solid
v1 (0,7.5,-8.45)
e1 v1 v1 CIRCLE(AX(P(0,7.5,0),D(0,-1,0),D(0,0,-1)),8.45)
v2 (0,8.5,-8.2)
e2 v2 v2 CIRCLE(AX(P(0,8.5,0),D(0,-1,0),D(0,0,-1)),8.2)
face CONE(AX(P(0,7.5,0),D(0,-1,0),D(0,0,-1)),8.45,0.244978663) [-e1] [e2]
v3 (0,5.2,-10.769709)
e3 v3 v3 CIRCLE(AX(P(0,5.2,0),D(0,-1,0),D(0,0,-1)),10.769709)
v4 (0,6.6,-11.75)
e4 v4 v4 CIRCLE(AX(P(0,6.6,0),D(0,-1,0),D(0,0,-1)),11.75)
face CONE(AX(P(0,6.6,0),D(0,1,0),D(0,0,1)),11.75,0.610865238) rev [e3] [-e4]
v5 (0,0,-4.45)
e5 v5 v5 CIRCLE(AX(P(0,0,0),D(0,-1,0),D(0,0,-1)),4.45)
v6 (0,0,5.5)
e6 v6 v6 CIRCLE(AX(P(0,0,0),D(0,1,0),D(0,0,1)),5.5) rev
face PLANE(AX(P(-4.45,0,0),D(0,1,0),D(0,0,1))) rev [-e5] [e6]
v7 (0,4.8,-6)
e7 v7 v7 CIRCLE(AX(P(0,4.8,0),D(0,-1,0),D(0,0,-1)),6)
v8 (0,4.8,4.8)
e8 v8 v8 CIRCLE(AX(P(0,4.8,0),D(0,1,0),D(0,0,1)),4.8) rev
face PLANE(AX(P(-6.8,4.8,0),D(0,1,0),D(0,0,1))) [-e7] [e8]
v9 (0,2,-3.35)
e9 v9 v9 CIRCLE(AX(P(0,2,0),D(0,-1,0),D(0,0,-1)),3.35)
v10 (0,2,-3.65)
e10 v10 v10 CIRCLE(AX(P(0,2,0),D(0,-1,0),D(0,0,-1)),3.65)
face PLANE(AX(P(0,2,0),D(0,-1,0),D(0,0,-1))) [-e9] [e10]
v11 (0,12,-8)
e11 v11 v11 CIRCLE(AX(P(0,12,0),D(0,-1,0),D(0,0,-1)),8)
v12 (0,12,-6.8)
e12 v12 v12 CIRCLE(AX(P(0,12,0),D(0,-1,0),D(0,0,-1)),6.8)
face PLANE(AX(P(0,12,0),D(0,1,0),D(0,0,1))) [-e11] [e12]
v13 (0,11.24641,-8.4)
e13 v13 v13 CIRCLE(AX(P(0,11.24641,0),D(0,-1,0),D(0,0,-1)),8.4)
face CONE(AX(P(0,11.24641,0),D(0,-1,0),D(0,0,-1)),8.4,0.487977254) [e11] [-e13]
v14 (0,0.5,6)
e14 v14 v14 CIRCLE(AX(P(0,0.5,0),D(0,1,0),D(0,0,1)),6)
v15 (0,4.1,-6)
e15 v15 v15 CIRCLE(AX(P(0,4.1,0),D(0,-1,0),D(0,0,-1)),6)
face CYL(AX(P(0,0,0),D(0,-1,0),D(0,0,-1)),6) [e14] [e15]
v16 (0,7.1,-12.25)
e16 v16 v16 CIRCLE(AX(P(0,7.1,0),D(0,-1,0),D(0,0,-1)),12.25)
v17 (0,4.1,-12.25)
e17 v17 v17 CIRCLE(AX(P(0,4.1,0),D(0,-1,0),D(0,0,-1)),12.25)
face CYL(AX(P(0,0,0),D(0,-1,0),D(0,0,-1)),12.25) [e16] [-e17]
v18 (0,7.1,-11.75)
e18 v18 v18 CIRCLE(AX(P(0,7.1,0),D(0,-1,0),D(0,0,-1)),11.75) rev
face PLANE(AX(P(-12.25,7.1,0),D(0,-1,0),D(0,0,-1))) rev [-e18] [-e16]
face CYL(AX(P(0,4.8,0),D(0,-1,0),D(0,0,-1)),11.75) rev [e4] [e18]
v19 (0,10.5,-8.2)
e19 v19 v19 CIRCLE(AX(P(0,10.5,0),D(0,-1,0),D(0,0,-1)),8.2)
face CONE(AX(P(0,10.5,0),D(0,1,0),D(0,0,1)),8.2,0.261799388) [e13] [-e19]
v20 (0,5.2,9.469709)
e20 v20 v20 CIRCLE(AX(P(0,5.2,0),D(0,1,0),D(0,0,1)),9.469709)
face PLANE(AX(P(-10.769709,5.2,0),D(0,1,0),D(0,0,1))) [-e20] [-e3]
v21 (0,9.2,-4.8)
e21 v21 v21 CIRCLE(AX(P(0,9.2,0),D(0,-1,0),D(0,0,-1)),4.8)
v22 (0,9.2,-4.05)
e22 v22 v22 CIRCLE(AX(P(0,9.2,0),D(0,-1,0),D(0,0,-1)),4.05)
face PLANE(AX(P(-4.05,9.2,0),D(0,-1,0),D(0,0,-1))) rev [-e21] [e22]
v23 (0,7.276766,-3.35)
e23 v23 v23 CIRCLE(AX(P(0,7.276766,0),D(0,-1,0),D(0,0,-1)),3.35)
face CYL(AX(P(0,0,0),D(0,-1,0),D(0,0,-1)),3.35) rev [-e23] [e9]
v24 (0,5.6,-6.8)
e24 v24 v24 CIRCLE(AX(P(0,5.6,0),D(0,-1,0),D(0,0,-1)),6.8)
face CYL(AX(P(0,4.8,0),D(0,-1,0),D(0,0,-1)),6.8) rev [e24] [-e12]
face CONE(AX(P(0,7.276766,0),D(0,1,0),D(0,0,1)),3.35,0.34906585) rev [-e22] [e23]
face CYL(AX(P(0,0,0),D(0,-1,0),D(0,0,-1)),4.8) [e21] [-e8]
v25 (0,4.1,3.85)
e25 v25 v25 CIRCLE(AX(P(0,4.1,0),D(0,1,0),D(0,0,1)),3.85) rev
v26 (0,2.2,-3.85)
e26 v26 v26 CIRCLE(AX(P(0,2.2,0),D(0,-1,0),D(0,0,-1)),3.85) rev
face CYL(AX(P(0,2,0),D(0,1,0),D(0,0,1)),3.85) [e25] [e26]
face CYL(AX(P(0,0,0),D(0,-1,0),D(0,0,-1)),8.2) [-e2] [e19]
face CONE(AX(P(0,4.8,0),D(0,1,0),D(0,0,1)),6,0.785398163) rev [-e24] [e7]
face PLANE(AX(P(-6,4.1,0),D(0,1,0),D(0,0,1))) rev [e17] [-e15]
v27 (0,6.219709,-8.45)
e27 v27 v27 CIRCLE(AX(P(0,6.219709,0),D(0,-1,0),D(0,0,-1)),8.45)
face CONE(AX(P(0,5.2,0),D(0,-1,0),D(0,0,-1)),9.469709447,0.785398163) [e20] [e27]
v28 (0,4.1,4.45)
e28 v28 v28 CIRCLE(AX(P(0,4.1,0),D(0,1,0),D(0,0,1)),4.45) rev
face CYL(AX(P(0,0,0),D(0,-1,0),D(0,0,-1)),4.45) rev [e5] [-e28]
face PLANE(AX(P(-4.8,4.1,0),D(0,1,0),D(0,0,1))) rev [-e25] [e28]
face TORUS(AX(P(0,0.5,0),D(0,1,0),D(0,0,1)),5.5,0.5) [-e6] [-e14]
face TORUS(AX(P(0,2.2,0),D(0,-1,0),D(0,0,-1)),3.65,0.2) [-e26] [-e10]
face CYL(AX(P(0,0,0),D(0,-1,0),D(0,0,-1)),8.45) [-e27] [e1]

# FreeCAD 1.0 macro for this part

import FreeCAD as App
import Part
import Sketcher
Q = App.Units.Quantity


def edges_at(feature, points):
    """Names of the edges that pass closest to the given points."""
    edges = feature.Shape.Edges
    near = lambda p: min(range(len(edges)), key=lambda i: edges[i].distToShape(Part.Vertex(*p))[0])
    return sorted({f"Edge{near(p) + 1}" for p in points})

doc = App.newDocument("Part")
params = doc.addObject("Spreadsheet::Sheet", "Params")
for row, (alias, value) in enumerate([
    ("sketch1_height", "3 mm"),
    ("sketch1_width", "7.8 mm"),
    ("sketch1_height2", "4.1 mm"),
    ("sketch1_width2", "6.25 mm"),
    ("revolution_angle", "360 deg"),
    ("sketch2_width", "6.8 mm"),
    ("sketch2_height", "0.4 mm"),
    ("sketch2_width2", "11.75 mm"),
    ("groove_angle", "360 deg"),
    ("sketch3_height", "5.1 mm"),
    ("sketch3_width", "1.45 mm"),
    ("sketch3_width2", "0.75 mm"),
    ("revolution2_angle", "360 deg"),
    ("sketch4_diameter", "7.7 mm"),
    ("sketch4_diameter2", "6.7 mm"),
    ("pad1_length", "2.1 mm"),
    ("sketch5_height", "2 mm"),
    ("sketch5_width", "1.2 mm"),
    ("sketch5_height2", "6.8 mm"),
    ("revolution3_angle", "360 deg"),
    ("revolution4_angle", "360 deg"),
    ("fillet_radius", "0.5 mm"),
    ("fillet2_radius", "0.2 mm"),
], start=1):
    params.set(f"A{row}", alias)
    params.set(f"B{row}", "=" + value)
    params.setAlias(f"B{row}", alias)

body = doc.addObject("PartDesign::Body", "Body")

sketch1 = body.newObject("Sketcher::SketchObject", "Sketch")
sketch1.AttachmentSupport = (doc.getObject("XY_Plane"), [""])
sketch1.MapMode = "FlatFace"
sketch1.addGeometry(Part.LineSegment(App.Vector(-4.5, 7.1, 0), App.Vector(-12.2, 7.1, 0)), False)
sketch1.addGeometry(Part.LineSegment(App.Vector(-12.2, 7.1, 0), App.Vector(-12.2, 4.1, 0)), False)
sketch1.addGeometry(Part.LineSegment(App.Vector(-12.2, 4.1, 0), App.Vector(-6, 4.1, 0)), False)
sketch1.addGeometry(Part.LineSegment(App.Vector(-6, 4.1, 0), App.Vector(-6, 0, 0)), False)
sketch1.addGeometry(Part.LineSegment(App.Vector(-6, 0, 0), App.Vector(-4.5, 0, 0)), False)
sketch1.addGeometry(Part.LineSegment(App.Vector(-4.5, 0, 0), App.Vector(-4.5, 7.1, 0)), False)
sketch1.addConstraint(Sketcher.Constraint("Coincident", 0, 2, 1, 1))
sketch1.addConstraint(Sketcher.Constraint("Coincident", 1, 2, 2, 1))
sketch1.addConstraint(Sketcher.Constraint("Coincident", 2, 2, 3, 1))
sketch1.addConstraint(Sketcher.Constraint("Coincident", 3, 2, 4, 1))
sketch1.addConstraint(Sketcher.Constraint("Coincident", 4, 2, 5, 1))
sketch1.addConstraint(Sketcher.Constraint("Coincident", 5, 2, 0, 1))
sketch1.addConstraint(Sketcher.Constraint("Horizontal", 0))
sketch1.addConstraint(Sketcher.Constraint("Vertical", 1))
sketch1.addConstraint(Sketcher.Constraint("Horizontal", 2))
sketch1.addConstraint(Sketcher.Constraint("Vertical", 3))
sketch1.addConstraint(Sketcher.Constraint("Horizontal", 4))
sketch1.addConstraint(Sketcher.Constraint("Vertical", 5))
sketch1.addConstraint(Sketcher.Constraint("PointOnObject", 3, 2, -1))
sketch1.addConstraint(Sketcher.Constraint("DistanceY", 1, 2, 1, 1, 3.0))
sketch1.addConstraint(Sketcher.Constraint("DistanceX", 0, 2, 0, 1, 7.8))
sketch1.addConstraint(Sketcher.Constraint("DistanceY", 3, 2, 3, 1, 4.1))
sketch1.addConstraint(Sketcher.Constraint("DistanceX", 2, 2, -1, 1, 6.0))
sketch1.addConstraint(Sketcher.Constraint("DistanceX", 2, 1, 2, 2, 6.25))
sketch1.setExpression("Constraints[13]", "Params.sketch1_height")
sketch1.setExpression("Constraints[14]", "Params.sketch1_width")
sketch1.setExpression("Constraints[15]", "Params.sketch1_height2")
sketch1.setExpression("Constraints[17]", "Params.sketch1_width2")
revolution = body.newObject("PartDesign::Revolution", "Revolution")
revolution.Profile = sketch1
revolution.ReferenceAxis = (sketch1, ["V_Axis"])
revolution.setExpression("Angle", "Params.revolution_angle")

sketch2 = body.newObject("Sketcher::SketchObject", "Sketch001")
sketch2.AttachmentSupport = (doc.getObject("XY_Plane"), [""])
sketch2.MapMode = "FlatFace"
sketch2.addGeometry(Part.LineSegment(App.Vector(-11.75, 6.6, 0), App.Vector(-10.77, 5.2, 0)), False)
sketch2.addGeometry(Part.LineSegment(App.Vector(-10.77, 5.2, 0), App.Vector(-6.8, 5.2, 0)), False)
sketch2.addGeometry(Part.LineSegment(App.Vector(-6.8, 5.2, 0), App.Vector(-6.8, 4.8, 0)), False)
sketch2.addGeometry(Part.LineSegment(App.Vector(-6.8, 4.8, 0), App.Vector(0, 4.8, 0)), False)
sketch2.addGeometry(Part.LineSegment(App.Vector(0, 4.8, 0), App.Vector(0, 10.78, 0)), False)
sketch2.addGeometry(Part.LineSegment(App.Vector(0, 10.78, 0), App.Vector(-11.75, 10.78, 0)), False)
sketch2.addGeometry(Part.LineSegment(App.Vector(-11.75, 10.78, 0), App.Vector(-11.75, 6.6, 0)), False)
sketch2.addConstraint(Sketcher.Constraint("Coincident", 0, 2, 1, 1))
sketch2.addConstraint(Sketcher.Constraint("Coincident", 1, 2, 2, 1))
sketch2.addConstraint(Sketcher.Constraint("Coincident", 2, 2, 3, 1))
sketch2.addConstraint(Sketcher.Constraint("Coincident", 3, 2, 4, 1))
sketch2.addConstraint(Sketcher.Constraint("Coincident", 4, 2, 5, 1))
sketch2.addConstraint(Sketcher.Constraint("Coincident", 5, 2, 6, 1))
sketch2.addConstraint(Sketcher.Constraint("Coincident", 6, 2, 0, 1))
sketch2.addConstraint(Sketcher.Constraint("Horizontal", 1))
sketch2.addConstraint(Sketcher.Constraint("Vertical", 2))
sketch2.addConstraint(Sketcher.Constraint("Horizontal", 3))
sketch2.addConstraint(Sketcher.Constraint("Vertical", 4))
sketch2.addConstraint(Sketcher.Constraint("Horizontal", 5))
sketch2.addConstraint(Sketcher.Constraint("Vertical", 6))
sketch2.addConstraint(Sketcher.Constraint("PointOnObject", 3, 2, -2))
sketch2.addConstraint(Sketcher.Constraint("Angle", 0, Q("-55 deg")))
sketch2.addConstraint(Sketcher.Constraint("DistanceX", 3, 1, 3, 2, 6.8))
sketch2.addConstraint(Sketcher.Constraint("DistanceY", 2, 2, 2, 1, 0.4))
sketch2.addConstraint(Sketcher.Constraint("DistanceX", 5, 2, 5, 1, 11.75))
sketch2.addConstraint(Sketcher.Constraint("DistanceY", -1, 1, 0, 2, 5.2))
sketch2.addConstraint(Sketcher.Constraint("DistanceY", -1, 1, 6, 2, 6.6))
sketch2.addConstraint(Sketcher.Constraint("DistanceY", 4, 1, 4, 2, 5.97818))
sketch2.setExpression("Constraints[15]", "Params.sketch2_width")
sketch2.setExpression("Constraints[16]", "Params.sketch2_height")
sketch2.setExpression("Constraints[17]", "Params.sketch2_width2")
groove = body.newObject("PartDesign::Groove", "Groove")
groove.Profile = sketch2
groove.ReferenceAxis = (sketch2, ["V_Axis"])
groove.setExpression("Angle", "Params.groove_angle")

sketch3 = body.newObject("Sketcher::SketchObject", "Sketch002")
sketch3.AttachmentSupport = (doc.getObject("XY_Plane"), [""])
sketch3.MapMode = "FlatFace"
sketch3.addGeometry(Part.LineSegment(App.Vector(-4.8, 9.2, 0), App.Vector(-4.8, 4.1, 0)), False)
sketch3.addGeometry(Part.LineSegment(App.Vector(-4.8, 4.1, 0), App.Vector(-3.4, 4.1, 0)), False)
sketch3.addGeometry(Part.LineSegment(App.Vector(-3.4, 4.1, 0), App.Vector(-3.4, 7.3, 0)), False)
sketch3.addGeometry(Part.LineSegment(App.Vector(-3.4, 7.3, 0), App.Vector(-4, 9.2, 0)), False)
sketch3.addGeometry(Part.LineSegment(App.Vector(-4, 9.2, 0), App.Vector(-4.8, 9.2, 0)), False)
sketch3.addConstraint(Sketcher.Constraint("Coincident", 0, 2, 1, 1))
sketch3.addConstraint(Sketcher.Constraint("Coincident", 1, 2, 2, 1))
sketch3.addConstraint(Sketcher.Constraint("Coincident", 2, 2, 3, 1))
sketch3.addConstraint(Sketcher.Constraint("Coincident", 3, 2, 4, 1))
sketch3.addConstraint(Sketcher.Constraint("Coincident", 4, 2, 0, 1))
sketch3.addConstraint(Sketcher.Constraint("Vertical", 0))
sketch3.addConstraint(Sketcher.Constraint("Horizontal", 1))
sketch3.addConstraint(Sketcher.Constraint("Vertical", 2))
sketch3.addConstraint(Sketcher.Constraint("Horizontal", 4))
sketch3.addConstraint(Sketcher.Constraint("Angle", 3, Q("110 deg")))
sketch3.addConstraint(Sketcher.Constraint("DistanceY", 0, 2, 0, 1, 5.1))
sketch3.addConstraint(Sketcher.Constraint("DistanceX", 1, 1, 1, 2, 1.45))
sketch3.addConstraint(Sketcher.Constraint("DistanceX", 4, 2, 4, 1, 0.75))
sketch3.addConstraint(Sketcher.Constraint("DistanceX", 0, 2, -1, 1, 4.8))
sketch3.addConstraint(Sketcher.Constraint("DistanceY", -1, 1, 0, 2, 4.1))
sketch3.setExpression("Constraints[10]", "Params.sketch3_height")
sketch3.setExpression("Constraints[11]", "Params.sketch3_width")
sketch3.setExpression("Constraints[12]", "Params.sketch3_width2")
revolution2 = body.newObject("PartDesign::Revolution", "Revolution001")
revolution2.Profile = sketch3
revolution2.ReferenceAxis = (sketch3, ["V_Axis"])
revolution2.setExpression("Angle", "Params.revolution2_angle")

sketch4 = body.newObject("Sketcher::SketchObject", "Sketch003")
sketch4.AttachmentSupport = (doc.getObject("XZ_Plane"), [""])
sketch4.MapMode = "FlatFace"
sketch4.AttachmentOffset = App.Placement(App.Vector(0, 0, -4.1), App.Rotation())
sketch4.addGeometry(Part.Circle(App.Vector(0, 0, 0), App.Vector(0, 0, 1), 3.9), False)
sketch4.addGeometry(Part.Circle(App.Vector(0, 0, 0), App.Vector(0, 0, 1), 3.4), False)
sketch4.addConstraint(Sketcher.Constraint("Coincident", 0, 3, -1, 1))
sketch4.addConstraint(Sketcher.Constraint("Coincident", 1, 3, -1, 1))
sketch4.addConstraint(Sketcher.Constraint("Diameter", 0, 7.7))
sketch4.addConstraint(Sketcher.Constraint("Diameter", 1, 6.7))
sketch4.setExpression("Constraints[2]", "Params.sketch4_diameter")
sketch4.setExpression("Constraints[3]", "Params.sketch4_diameter2")
pad1 = body.newObject("PartDesign::Pad", "Pad")
pad1.Profile = sketch4
pad1.setExpression("Length", "Params.pad1_length")

sketch5 = body.newObject("Sketcher::SketchObject", "Sketch004")
sketch5.AttachmentSupport = (doc.getObject("XY_Plane"), [""])
sketch5.MapMode = "FlatFace"
sketch5.addGeometry(Part.LineSegment(App.Vector(-6.8, 12, 0), App.Vector(-8, 12, 0)), False)
sketch5.addGeometry(Part.LineSegment(App.Vector(-8, 12, 0), App.Vector(-8.4, 11.2, 0)), False)
sketch5.addGeometry(Part.LineSegment(App.Vector(-8.4, 11.2, 0), App.Vector(-8.2, 10.5, 0)), False)
sketch5.addGeometry(Part.LineSegment(App.Vector(-8.2, 10.5, 0), App.Vector(-8.2, 8.5, 0)), False)
sketch5.addGeometry(Part.LineSegment(App.Vector(-8.2, 8.5, 0), App.Vector(-8.4, 7.5, 0)), False)
sketch5.addGeometry(Part.LineSegment(App.Vector(-8.4, 7.5, 0), App.Vector(-8.4, 6.2, 0)), False)
sketch5.addGeometry(Part.LineSegment(App.Vector(-8.4, 6.2, 0), App.Vector(-9.5, 5.2, 0)), False)
sketch5.addGeometry(Part.LineSegment(App.Vector(-9.5, 5.2, 0), App.Vector(-6.8, 5.2, 0)), False)
sketch5.addGeometry(Part.LineSegment(App.Vector(-6.8, 5.2, 0), App.Vector(-6.8, 12, 0)), False)
sketch5.addConstraint(Sketcher.Constraint("Coincident", 0, 2, 1, 1))
sketch5.addConstraint(Sketcher.Constraint("Coincident", 1, 2, 2, 1))
sketch5.addConstraint(Sketcher.Constraint("Coincident", 2, 2, 3, 1))
sketch5.addConstraint(Sketcher.Constraint("Coincident", 3, 2, 4, 1))
sketch5.addConstraint(Sketcher.Constraint("Coincident", 4, 2, 5, 1))
sketch5.addConstraint(Sketcher.Constraint("Coincident", 5, 2, 6, 1))
sketch5.addConstraint(Sketcher.Constraint("Coincident", 6, 2, 7, 1))
sketch5.addConstraint(Sketcher.Constraint("Coincident", 7, 2, 8, 1))
sketch5.addConstraint(Sketcher.Constraint("Coincident", 8, 2, 0, 1))
sketch5.addConstraint(Sketcher.Constraint("Horizontal", 0))
sketch5.addConstraint(Sketcher.Constraint("Vertical", 3))
sketch5.addConstraint(Sketcher.Constraint("Vertical", 5))
sketch5.addConstraint(Sketcher.Constraint("Horizontal", 7))
sketch5.addConstraint(Sketcher.Constraint("Vertical", 8))
sketch5.addConstraint(Sketcher.Constraint("DistanceY", 3, 2, 3, 1, 2.0))
sketch5.addConstraint(Sketcher.Constraint("Angle", 2, Q("-75 deg")))
sketch5.addConstraint(Sketcher.Constraint("Angle", 6, Q("-135 deg")))
sketch5.addConstraint(Sketcher.Constraint("DistanceX", 0, 2, 0, 1, 1.2))
sketch5.addConstraint(Sketcher.Constraint("DistanceY", 8, 1, 8, 2, 6.8))
sketch5.addConstraint(Sketcher.Constraint("DistanceX", 0, 2, -1, 1, 8.0))
sketch5.addConstraint(Sketcher.Constraint("DistanceY", -1, 1, 0, 2, 12.0))
sketch5.addConstraint(Sketcher.Constraint("DistanceY", 4, 2, 3, 2, 1.0))
sketch5.addConstraint(Sketcher.Constraint("DistanceX", 1, 2, -1, 1, 8.4))
sketch5.addConstraint(Sketcher.Constraint("DistanceX", 2, 2, -1, 1, 8.2))
sketch5.addConstraint(Sketcher.Constraint("DistanceY", -1, 1, 2, 2, 10.5))
sketch5.addConstraint(Sketcher.Constraint("DistanceX", 4, 2, -1, 1, 8.45))
sketch5.addConstraint(Sketcher.Constraint("DistanceX", 7, 1, 7, 2, 2.669709))
sketch5.setExpression("Constraints[14]", "Params.sketch5_height")
sketch5.setExpression("Constraints[17]", "Params.sketch5_width")
sketch5.setExpression("Constraints[18]", "Params.sketch5_height2")
revolution3 = body.newObject("PartDesign::Revolution", "Revolution002")
revolution3.Profile = sketch5
revolution3.ReferenceAxis = (sketch5, ["V_Axis"])
revolution3.setExpression("Angle", "Params.revolution3_angle")

sketch6 = body.newObject("Sketcher::SketchObject", "Sketch005")
sketch6.AttachmentSupport = (doc.getObject("XY_Plane"), [""])
sketch6.MapMode = "FlatFace"
sketch6.addGeometry(Part.LineSegment(App.Vector(-6, 4.8, 0), App.Vector(-6.8, 5.6, 0)), False)
sketch6.addGeometry(Part.LineSegment(App.Vector(-6.8, 5.6, 0), App.Vector(-7.18, 5.6, 0)), False)
sketch6.addGeometry(Part.LineSegment(App.Vector(-7.18, 5.6, 0), App.Vector(-7.18, 4.54, 0)), False)
sketch6.addGeometry(Part.LineSegment(App.Vector(-7.18, 4.54, 0), App.Vector(-6, 4.54, 0)), False)
sketch6.addGeometry(Part.LineSegment(App.Vector(-6, 4.54, 0), App.Vector(-6, 4.8, 0)), False)
sketch6.addConstraint(Sketcher.Constraint("Coincident", 0, 2, 1, 1))
sketch6.addConstraint(Sketcher.Constraint("Coincident", 1, 2, 2, 1))
sketch6.addConstraint(Sketcher.Constraint("Coincident", 2, 2, 3, 1))
sketch6.addConstraint(Sketcher.Constraint("Coincident", 3, 2, 4, 1))
sketch6.addConstraint(Sketcher.Constraint("Coincident", 4, 2, 0, 1))
sketch6.addConstraint(Sketcher.Constraint("Horizontal", 1))
sketch6.addConstraint(Sketcher.Constraint("Vertical", 2))
sketch6.addConstraint(Sketcher.Constraint("Horizontal", 3))
sketch6.addConstraint(Sketcher.Constraint("Vertical", 4))
sketch6.addConstraint(Sketcher.Constraint("Angle", 0, Q("135 deg")))
sketch6.addConstraint(Sketcher.Constraint("DistanceX", 3, 2, -1, 1, 6.0))
sketch6.addConstraint(Sketcher.Constraint("DistanceX", 0, 2, -1, 1, 6.8))
sketch6.addConstraint(Sketcher.Constraint("DistanceY", -1, 1, 0, 2, 5.6))
sketch6.addConstraint(Sketcher.Constraint("DistanceX", 1, 2, 1, 1, 0.375055))
sketch6.addConstraint(Sketcher.Constraint("DistanceY", 2, 2, 2, 1, 1.056247))
revolution4 = body.newObject("PartDesign::Revolution", "Revolution003")
revolution4.Profile = sketch6
revolution4.ReferenceAxis = (sketch6, ["V_Axis"])
revolution4.setExpression("Angle", "Params.revolution4_angle")
doc.recompute()

fillet = body.newObject("PartDesign::Fillet", "Fillet")
fillet.Base = (revolution4, edges_at(revolution4, [(0, 0, 6)]))
fillet.setExpression("Radius", "Params.fillet_radius")
doc.recompute()

fillet2 = body.newObject("PartDesign::Fillet", "Fillet001")
fillet2.Base = (fillet, edges_at(fillet, [(0, 2, -3.85)]))
fillet2.setExpression("Radius", "Params.fillet2_radius")

doc.recompute()
